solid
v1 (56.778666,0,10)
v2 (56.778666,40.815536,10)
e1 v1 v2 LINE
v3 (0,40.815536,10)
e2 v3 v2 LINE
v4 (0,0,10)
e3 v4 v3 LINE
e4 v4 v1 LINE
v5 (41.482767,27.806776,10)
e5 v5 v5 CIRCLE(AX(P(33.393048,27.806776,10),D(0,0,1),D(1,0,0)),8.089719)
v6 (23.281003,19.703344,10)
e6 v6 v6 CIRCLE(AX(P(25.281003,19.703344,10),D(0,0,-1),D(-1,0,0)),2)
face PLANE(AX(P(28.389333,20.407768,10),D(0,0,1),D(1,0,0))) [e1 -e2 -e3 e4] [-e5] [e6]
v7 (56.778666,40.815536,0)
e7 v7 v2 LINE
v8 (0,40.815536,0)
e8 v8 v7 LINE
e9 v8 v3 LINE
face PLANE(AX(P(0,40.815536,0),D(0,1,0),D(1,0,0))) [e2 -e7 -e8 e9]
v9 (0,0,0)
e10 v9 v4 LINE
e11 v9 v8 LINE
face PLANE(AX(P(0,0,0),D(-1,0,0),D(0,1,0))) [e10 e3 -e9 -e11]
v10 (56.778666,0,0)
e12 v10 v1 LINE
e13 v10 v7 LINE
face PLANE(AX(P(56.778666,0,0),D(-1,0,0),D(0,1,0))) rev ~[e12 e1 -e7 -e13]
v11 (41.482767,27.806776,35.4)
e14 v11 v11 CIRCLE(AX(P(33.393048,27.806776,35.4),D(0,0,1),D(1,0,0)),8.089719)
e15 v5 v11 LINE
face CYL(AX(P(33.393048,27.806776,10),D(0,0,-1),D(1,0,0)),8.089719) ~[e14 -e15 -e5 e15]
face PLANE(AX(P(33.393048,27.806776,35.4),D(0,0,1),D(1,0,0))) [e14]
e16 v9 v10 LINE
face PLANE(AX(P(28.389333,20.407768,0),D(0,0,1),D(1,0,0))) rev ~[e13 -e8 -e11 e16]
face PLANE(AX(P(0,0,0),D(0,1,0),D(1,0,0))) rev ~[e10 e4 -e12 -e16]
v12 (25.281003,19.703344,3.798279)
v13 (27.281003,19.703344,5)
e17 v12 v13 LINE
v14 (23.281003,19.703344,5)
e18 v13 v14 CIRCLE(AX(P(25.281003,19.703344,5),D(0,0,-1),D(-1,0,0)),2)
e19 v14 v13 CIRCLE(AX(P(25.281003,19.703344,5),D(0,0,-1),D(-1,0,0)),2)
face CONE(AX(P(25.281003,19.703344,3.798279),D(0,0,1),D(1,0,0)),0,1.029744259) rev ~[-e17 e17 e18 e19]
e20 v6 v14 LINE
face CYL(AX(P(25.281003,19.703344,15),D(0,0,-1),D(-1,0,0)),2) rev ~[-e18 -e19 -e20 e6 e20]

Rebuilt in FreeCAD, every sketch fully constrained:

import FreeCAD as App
import Part
import Sketcher
Q = App.Units.Quantity


def add_polygon(sketch, points):
    """Adds a closed chain of lines whose ends are joined by coincident constraints."""
    first, n = sketch.GeometryCount, len(points)
    for a, b in zip(points, points[1:] + points[:1]):
        sketch.addGeometry(Part.LineSegment(App.Vector(*a, 0), App.Vector(*b, 0)), False)
    for i in range(n):
        sketch.addConstraint(Sketcher.Constraint("Coincident", first + i, 2, first + (i + 1) % n, 1))

doc = App.newDocument("Part")
body = doc.addObject("PartDesign::Body", "Body")

# Sketch on XY plane
sketch1 = body.newObject("Sketcher::SketchObject", "Sketch")
sketch1.AttachmentSupport = (doc.getObject("XY_Plane"), [""])
sketch1.MapMode = "FlatFace"
add_polygon(sketch1, [(0, 41), (0, 0), (57, 0), (57, 41)])  # lines 0-3
sketch1.addConstraint(Sketcher.Constraint("Vertical", 0))
sketch1.addConstraint(Sketcher.Constraint("Horizontal", 1))
sketch1.addConstraint(Sketcher.Constraint("Vertical", 2))
sketch1.addConstraint(Sketcher.Constraint("Horizontal", 3))
sketch1.addConstraint(Sketcher.Constraint("Coincident", 0, 2, -1, 1))
sketch1.addConstraint(Sketcher.Constraint("DistanceX", 1, 1, 1, 2, Q("56.778666 mm")))
sketch1.addConstraint(Sketcher.Constraint("DistanceY", 0, 2, 0, 1, Q("40.815536 mm")))
pad1 = body.newObject("PartDesign::Pad", "Pad")
pad1.Profile = sketch1
pad1.Length = 10

# Sketch on XY plane
sketch2 = body.newObject("Sketcher::SketchObject", "Sketch001")
sketch2.AttachmentSupport = (doc.getObject("XY_Plane"), [""])
sketch2.MapMode = "FlatFace"
sketch2.AttachmentOffset = App.Placement(App.Vector(0, 0, 10), App.Rotation())
sketch2.addGeometry(Part.Circle(App.Vector(25.3, 19.7, 0), App.Vector(0, 0, 1), 2), False)
sketch2.addConstraint(Sketcher.Constraint("Diameter", 0, Q("4 mm")))
sketch2.addConstraint(Sketcher.Constraint("DistanceX", -1, 1, 0, 3, Q("25.281003 mm")))
sketch2.addConstraint(Sketcher.Constraint("DistanceY", -1, 1, 0, 3, Q("19.703344 mm")))
doc.recompute()
hole = body.newObject("PartDesign::Hole", "Hole")
hole.Profile = sketch2
hole.ThreadType = "None"
hole.Diameter = 4
hole.DepthType = "Dimension"
hole.Depth = 5
hole.DrillPoint = "Angled"
hole.DrillPointAngle = 118

# Sketch on XY plane
sketch3 = body.newObject("Sketcher::SketchObject", "Sketch002")
sketch3.AttachmentSupport = (doc.getObject("XY_Plane"), [""])
sketch3.MapMode = "FlatFace"
sketch3.AttachmentOffset = App.Placement(App.Vector(0, 0, 10), App.Rotation())
sketch3.addGeometry(Part.Circle(App.Vector(33, 28, 0), App.Vector(0, 0, 1), 8), False)
sketch3.addConstraint(Sketcher.Constraint("Diameter", 0, Q("16.179439 mm")))
sketch3.addConstraint(Sketcher.Constraint("DistanceX", -1, 1, 0, 3, Q("33.393048 mm")))
sketch3.addConstraint(Sketcher.Constraint("DistanceY", -1, 1, 0, 3, Q("27.806776 mm")))
pad2 = body.newObject("PartDesign::Pad", "Pad001")
pad2.Profile = sketch3
pad2.Length = 25.4

doc.recompute()
